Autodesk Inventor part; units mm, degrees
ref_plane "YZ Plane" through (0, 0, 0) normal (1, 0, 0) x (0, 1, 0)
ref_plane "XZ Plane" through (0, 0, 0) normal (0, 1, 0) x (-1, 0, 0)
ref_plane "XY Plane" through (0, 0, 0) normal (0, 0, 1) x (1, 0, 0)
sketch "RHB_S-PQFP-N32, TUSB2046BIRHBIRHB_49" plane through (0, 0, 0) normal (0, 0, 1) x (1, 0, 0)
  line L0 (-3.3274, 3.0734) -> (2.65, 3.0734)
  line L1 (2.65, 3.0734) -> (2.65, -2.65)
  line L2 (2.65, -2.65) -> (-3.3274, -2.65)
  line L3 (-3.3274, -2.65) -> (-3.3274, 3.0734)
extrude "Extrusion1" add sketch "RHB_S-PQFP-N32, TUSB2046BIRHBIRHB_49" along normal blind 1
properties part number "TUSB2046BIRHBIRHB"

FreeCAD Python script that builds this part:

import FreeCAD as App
import Part
import Sketcher

V = App.Vector


def add_polygon(sketch, points):
    """Adds a closed chain of lines whose ends are joined by coincident constraints."""
    first, n = sketch.GeometryCount, len(points)
    for a, b in zip(points, points[1:] + points[:1]):
        sketch.addGeometry(Part.LineSegment(App.Vector(*a, 0), App.Vector(*b, 0)), False)
    for i in range(n):
        sketch.addConstraint(Sketcher.Constraint("Coincident", first + i, 2, first + (i + 1) % n, 1))

doc = App.newDocument("Part")
params = doc.addObject("Spreadsheet::Sheet", "Params")
for row, (alias, value) in enumerate([
    ("pad1_length", "1 mm"),
], start=1):
    params.set(f"A{row}", alias)
    params.set(f"B{row}", "=" + value)
    params.setAlias(f"B{row}", alias)

body = doc.addObject("PartDesign::Body", "Body")

sketch1 = doc.addObject("Sketcher::SketchObject", "Sketch")
body.addObject(sketch1)
sketch1.AttachmentSupport = (doc.XY_Plane, [""])
sketch1.MapMode = "FlatFace"
add_polygon(sketch1, [(3, 3), (-3, 3), (-3, -3), (3, -3)])
sketch1.addConstraint([
    Sketcher.Constraint("Horizontal", 0),
    Sketcher.Constraint("Vertical", 1),
    Sketcher.Constraint("Horizontal", 2),
    Sketcher.Constraint("Vertical", 3),
    Sketcher.Constraint("DistanceY", 1, 2, -1, 1, 2.65),
    Sketcher.Constraint("DistanceX", -1, 1, 2, 2, 2.65),
    Sketcher.Constraint("DistanceX", 0, 2, 0, 1, 5.9774),
    Sketcher.Constraint("DistanceY", 1, 2, 1, 1, 5.7234),
])
pad1 = doc.addObject("PartDesign::Pad", "Pad")
body.addObject(pad1)
pad1.Profile = sketch1
pad1.setExpression("Length", "Params.pad1_length")

doc.recompute()
